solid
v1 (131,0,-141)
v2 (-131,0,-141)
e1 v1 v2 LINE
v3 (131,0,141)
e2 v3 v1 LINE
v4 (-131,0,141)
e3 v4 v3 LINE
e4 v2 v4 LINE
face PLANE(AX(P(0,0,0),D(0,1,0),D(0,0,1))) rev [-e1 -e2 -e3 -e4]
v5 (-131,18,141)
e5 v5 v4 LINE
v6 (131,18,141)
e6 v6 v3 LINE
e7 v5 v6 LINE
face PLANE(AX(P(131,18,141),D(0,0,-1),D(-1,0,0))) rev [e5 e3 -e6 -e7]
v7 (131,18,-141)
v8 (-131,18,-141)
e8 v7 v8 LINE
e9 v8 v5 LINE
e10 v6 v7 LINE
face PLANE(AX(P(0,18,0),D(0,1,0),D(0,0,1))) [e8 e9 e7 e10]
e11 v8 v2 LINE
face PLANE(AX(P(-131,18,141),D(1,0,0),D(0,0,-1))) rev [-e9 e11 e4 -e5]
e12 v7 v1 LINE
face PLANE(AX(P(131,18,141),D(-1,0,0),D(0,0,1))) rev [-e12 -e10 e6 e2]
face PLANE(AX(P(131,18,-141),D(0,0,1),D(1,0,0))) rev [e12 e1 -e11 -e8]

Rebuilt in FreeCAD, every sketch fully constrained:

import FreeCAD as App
import Part
import Sketcher
Q = App.Units.Quantity

doc = App.newDocument("Part")
params = doc.addObject("Spreadsheet::Sheet", "Params")
for row, (alias, value) in enumerate([
    ("sketch1_width", "262 mm"),
    ("sketch1_height", "282 mm"),
    ("pad1_length", "18 mm"),
], start=1):
    params.set(f"A{row}", alias)
    params.set(f"B{row}", "=" + value)
    params.setAlias(f"B{row}", alias)

body = doc.addObject("PartDesign::Body", "Body")

# Sketch on XZ plane
sketch1 = doc.addObject("Sketcher::SketchObject", "Sketch")
body.addObject(sketch1)
sketch1.AttachmentSupport = (doc.XZ_Plane, [""])
sketch1.MapMode = "FlatFace"
sketch1.addGeometry(Part.LineSegment(App.Vector(-131, -141, 0), App.Vector(-131, 141, 0)), False)
sketch1.addGeometry(Part.LineSegment(App.Vector(-131, 141, 0), App.Vector(131, 141, 0)), False)
sketch1.addGeometry(Part.LineSegment(App.Vector(131, 141, 0), App.Vector(131, -141, 0)), False)
sketch1.addGeometry(Part.LineSegment(App.Vector(131, -141, 0), App.Vector(-131, -141, 0)), False)
sketch1.addConstraint(Sketcher.Constraint("Coincident", 0, 2, 1, 1))
sketch1.addConstraint(Sketcher.Constraint("Coincident", 1, 2, 2, 1))
sketch1.addConstraint(Sketcher.Constraint("Coincident", 2, 2, 3, 1))
sketch1.addConstraint(Sketcher.Constraint("Coincident", 3, 2, 0, 1))
sketch1.addConstraint(Sketcher.Constraint("Vertical", 0))
sketch1.addConstraint(Sketcher.Constraint("Horizontal", 1))
sketch1.addConstraint(Sketcher.Constraint("Vertical", 2))
sketch1.addConstraint(Sketcher.Constraint("Horizontal", 3))
sketch1.addConstraint(Sketcher.Constraint("Symmetric", 0, 2, 2, 2, -1, 1))
sketch1.addConstraint(Sketcher.Constraint("DistanceX", 1, 1, 1, 2, Q("262 mm")))
sketch1.addConstraint(Sketcher.Constraint("DistanceY", 0, 1, 0, 2, Q("282 mm")))
sketch1.setExpression("Constraints[9]", "Params.sketch1_width")
sketch1.setExpression("Constraints[10]", "Params.sketch1_height")
pad1 = doc.addObject("PartDesign::Pad", "Pad")
body.addObject(pad1)
pad1.Profile = sketch1
pad1.setExpression("Length", "Params.pad1_length")
pad1.Reversed = True

doc.recompute()
